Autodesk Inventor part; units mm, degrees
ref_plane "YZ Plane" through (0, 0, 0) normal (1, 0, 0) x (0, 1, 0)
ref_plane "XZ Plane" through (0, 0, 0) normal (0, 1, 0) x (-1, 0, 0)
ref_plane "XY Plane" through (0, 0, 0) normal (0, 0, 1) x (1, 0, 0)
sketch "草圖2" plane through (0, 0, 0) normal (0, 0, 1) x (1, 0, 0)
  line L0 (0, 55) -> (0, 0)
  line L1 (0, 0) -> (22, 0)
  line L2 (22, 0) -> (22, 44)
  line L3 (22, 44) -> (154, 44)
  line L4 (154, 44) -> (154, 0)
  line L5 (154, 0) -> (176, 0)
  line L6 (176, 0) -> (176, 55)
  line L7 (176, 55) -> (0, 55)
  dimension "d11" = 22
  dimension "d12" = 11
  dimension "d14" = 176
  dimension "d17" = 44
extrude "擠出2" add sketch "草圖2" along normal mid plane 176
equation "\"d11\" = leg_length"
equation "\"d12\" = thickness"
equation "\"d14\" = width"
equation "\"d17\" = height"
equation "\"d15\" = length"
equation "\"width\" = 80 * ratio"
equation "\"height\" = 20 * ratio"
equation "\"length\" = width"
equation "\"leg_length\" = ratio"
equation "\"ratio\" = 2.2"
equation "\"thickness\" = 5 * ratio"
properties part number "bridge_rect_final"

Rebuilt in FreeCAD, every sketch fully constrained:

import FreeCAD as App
import Part
import Sketcher
from FreeCAD import Vector
Q = App.Units.Quantity


def add_polygon(sketch, points):
    """Adds a closed chain of lines whose ends are joined by coincident constraints."""
    first, n = sketch.GeometryCount, len(points)
    for a, b in zip(points, points[1:] + points[:1]):
        sketch.addGeometry(Part.LineSegment(App.Vector(*a, 0), App.Vector(*b, 0)), False)
    for i in range(n):
        sketch.addConstraint(Sketcher.Constraint("Coincident", first + i, 2, first + (i + 1) % n, 1))

doc = App.newDocument("Part")
params = doc.addObject("Spreadsheet::Sheet", "Params")
for row, (alias, value) in enumerate([
    ("sketch1_width", "176 mm"),
    ("sketch1_width2", "22 mm"),
    ("sketch1_height", "44 mm"),
    ("pad1_length", "176 mm"),
], start=1):
    params.set(f"A{row}", alias)
    params.set(f"B{row}", "=" + value)
    params.setAlias(f"B{row}", alias)

body = doc.addObject("PartDesign::Body", "Body")

# Sketch on XY plane
sketch1 = body.newObject("Sketcher::SketchObject", "Sketch")
sketch1.AttachmentSupport = (doc.getObject("XY_Plane"), [""])
sketch1.MapMode = "FlatFace"
add_polygon(sketch1, [(176, 55), (0, 55), (0, 0), (22, 0), (22, 44), (154, 44), (154, 0), (176, 0)])  # lines 0-7
sketch1.addConstraint([
    Sketcher.Constraint("Horizontal", 0),
    Sketcher.Constraint("Vertical", 1),
    Sketcher.Constraint("Horizontal", 2),
    Sketcher.Constraint("Vertical", 3),
    Sketcher.Constraint("Horizontal", 4),
    Sketcher.Constraint("Vertical", 5),
    Sketcher.Constraint("Horizontal", 6),
    Sketcher.Constraint("Vertical", 7),
    Sketcher.Constraint("Coincident", 1, 2, -1, 1),
    Sketcher.Constraint("PointOnObject", 5, 2, -1),
    Sketcher.Constraint("Equal", 2, 6),
    Sketcher.Constraint("DistanceX", 0, 2, 0, 1, Q("176 mm")),
    Sketcher.Constraint("DistanceX", 2, 1, 2, 2, Q("22 mm")),
    Sketcher.Constraint("DistanceY", 3, 1, 3, 2, Q("44 mm")),
    Sketcher.Constraint("DistanceY", 3, 2, 0, 2, Q("11 mm")),
])
sketch1.setExpression("Constraints[19]", "Params.sketch1_width")
sketch1.setExpression("Constraints[20]", "Params.sketch1_width2")
sketch1.setExpression("Constraints[21]", "Params.sketch1_height")
pad1 = body.newObject("PartDesign::Pad", "Pad")
pad1.Profile = sketch1
pad1.setExpression("Length", "Params.pad1_length")
pad1.Midplane = True

doc.recompute()
